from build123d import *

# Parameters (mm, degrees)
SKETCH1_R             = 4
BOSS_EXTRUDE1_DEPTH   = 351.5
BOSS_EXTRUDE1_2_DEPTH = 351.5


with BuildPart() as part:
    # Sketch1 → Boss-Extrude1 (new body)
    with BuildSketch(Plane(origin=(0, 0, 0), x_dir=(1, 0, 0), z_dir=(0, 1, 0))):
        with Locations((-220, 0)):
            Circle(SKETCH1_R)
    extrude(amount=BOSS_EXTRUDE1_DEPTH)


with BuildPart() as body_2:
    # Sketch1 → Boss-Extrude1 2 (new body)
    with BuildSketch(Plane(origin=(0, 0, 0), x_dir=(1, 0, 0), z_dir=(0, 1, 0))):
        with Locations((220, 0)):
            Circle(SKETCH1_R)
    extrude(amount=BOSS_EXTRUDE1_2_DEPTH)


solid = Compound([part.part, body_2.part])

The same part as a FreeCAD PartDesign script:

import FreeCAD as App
import Part
import Sketcher

V = App.Vector

doc = App.newDocument("Part")
body = doc.addObject("PartDesign::Body", "Body")

sketch1 = body.newObject("Sketcher::SketchObject", "Sketch")
sketch1.AttachmentSupport = (doc.getObject("XZ_Plane"), [""])
sketch1.MapMode = "FlatFace"
sketch1.addGeometry(Part.Circle(V(-220, 0, 0), V(0, 0, 1), 4), False)
sketch1.addConstraint([
    Sketcher.Constraint("PointOnObject", 0, 3, -1),
    Sketcher.Constraint("Diameter", 0, 8.0),
    Sketcher.Constraint("DistanceX", 0, 3, -1, 1, 220.0),
])
pad1 = body.newObject("PartDesign::Pad", "Pad")
pad1.Profile = sketch1
pad1.Length = 351.5
pad1.Reversed = True
body2 = doc.addObject("PartDesign::Body", "Body001")

sketch2 = body2.newObject("Sketcher::SketchObject", "Sketch001")
sketch2.AttachmentSupport = (doc.getObject("XZ_Plane001"), [""])
sketch2.MapMode = "FlatFace"
sketch2.addGeometry(Part.Circle(V(220, 0, 0), V(0, 0, 1), 4), False)
sketch2.addConstraint([
    Sketcher.Constraint("PointOnObject", 0, 3, -1),
    Sketcher.Constraint("Diameter", 0, 8.0),
    Sketcher.Constraint("DistanceX", -1, 1, 0, 3, 220.0),
])
pad2 = body2.newObject("PartDesign::Pad", "Pad001")
pad2.Profile = sketch2
pad2.Length = 351.5
pad2.Reversed = True

doc.recompute()
